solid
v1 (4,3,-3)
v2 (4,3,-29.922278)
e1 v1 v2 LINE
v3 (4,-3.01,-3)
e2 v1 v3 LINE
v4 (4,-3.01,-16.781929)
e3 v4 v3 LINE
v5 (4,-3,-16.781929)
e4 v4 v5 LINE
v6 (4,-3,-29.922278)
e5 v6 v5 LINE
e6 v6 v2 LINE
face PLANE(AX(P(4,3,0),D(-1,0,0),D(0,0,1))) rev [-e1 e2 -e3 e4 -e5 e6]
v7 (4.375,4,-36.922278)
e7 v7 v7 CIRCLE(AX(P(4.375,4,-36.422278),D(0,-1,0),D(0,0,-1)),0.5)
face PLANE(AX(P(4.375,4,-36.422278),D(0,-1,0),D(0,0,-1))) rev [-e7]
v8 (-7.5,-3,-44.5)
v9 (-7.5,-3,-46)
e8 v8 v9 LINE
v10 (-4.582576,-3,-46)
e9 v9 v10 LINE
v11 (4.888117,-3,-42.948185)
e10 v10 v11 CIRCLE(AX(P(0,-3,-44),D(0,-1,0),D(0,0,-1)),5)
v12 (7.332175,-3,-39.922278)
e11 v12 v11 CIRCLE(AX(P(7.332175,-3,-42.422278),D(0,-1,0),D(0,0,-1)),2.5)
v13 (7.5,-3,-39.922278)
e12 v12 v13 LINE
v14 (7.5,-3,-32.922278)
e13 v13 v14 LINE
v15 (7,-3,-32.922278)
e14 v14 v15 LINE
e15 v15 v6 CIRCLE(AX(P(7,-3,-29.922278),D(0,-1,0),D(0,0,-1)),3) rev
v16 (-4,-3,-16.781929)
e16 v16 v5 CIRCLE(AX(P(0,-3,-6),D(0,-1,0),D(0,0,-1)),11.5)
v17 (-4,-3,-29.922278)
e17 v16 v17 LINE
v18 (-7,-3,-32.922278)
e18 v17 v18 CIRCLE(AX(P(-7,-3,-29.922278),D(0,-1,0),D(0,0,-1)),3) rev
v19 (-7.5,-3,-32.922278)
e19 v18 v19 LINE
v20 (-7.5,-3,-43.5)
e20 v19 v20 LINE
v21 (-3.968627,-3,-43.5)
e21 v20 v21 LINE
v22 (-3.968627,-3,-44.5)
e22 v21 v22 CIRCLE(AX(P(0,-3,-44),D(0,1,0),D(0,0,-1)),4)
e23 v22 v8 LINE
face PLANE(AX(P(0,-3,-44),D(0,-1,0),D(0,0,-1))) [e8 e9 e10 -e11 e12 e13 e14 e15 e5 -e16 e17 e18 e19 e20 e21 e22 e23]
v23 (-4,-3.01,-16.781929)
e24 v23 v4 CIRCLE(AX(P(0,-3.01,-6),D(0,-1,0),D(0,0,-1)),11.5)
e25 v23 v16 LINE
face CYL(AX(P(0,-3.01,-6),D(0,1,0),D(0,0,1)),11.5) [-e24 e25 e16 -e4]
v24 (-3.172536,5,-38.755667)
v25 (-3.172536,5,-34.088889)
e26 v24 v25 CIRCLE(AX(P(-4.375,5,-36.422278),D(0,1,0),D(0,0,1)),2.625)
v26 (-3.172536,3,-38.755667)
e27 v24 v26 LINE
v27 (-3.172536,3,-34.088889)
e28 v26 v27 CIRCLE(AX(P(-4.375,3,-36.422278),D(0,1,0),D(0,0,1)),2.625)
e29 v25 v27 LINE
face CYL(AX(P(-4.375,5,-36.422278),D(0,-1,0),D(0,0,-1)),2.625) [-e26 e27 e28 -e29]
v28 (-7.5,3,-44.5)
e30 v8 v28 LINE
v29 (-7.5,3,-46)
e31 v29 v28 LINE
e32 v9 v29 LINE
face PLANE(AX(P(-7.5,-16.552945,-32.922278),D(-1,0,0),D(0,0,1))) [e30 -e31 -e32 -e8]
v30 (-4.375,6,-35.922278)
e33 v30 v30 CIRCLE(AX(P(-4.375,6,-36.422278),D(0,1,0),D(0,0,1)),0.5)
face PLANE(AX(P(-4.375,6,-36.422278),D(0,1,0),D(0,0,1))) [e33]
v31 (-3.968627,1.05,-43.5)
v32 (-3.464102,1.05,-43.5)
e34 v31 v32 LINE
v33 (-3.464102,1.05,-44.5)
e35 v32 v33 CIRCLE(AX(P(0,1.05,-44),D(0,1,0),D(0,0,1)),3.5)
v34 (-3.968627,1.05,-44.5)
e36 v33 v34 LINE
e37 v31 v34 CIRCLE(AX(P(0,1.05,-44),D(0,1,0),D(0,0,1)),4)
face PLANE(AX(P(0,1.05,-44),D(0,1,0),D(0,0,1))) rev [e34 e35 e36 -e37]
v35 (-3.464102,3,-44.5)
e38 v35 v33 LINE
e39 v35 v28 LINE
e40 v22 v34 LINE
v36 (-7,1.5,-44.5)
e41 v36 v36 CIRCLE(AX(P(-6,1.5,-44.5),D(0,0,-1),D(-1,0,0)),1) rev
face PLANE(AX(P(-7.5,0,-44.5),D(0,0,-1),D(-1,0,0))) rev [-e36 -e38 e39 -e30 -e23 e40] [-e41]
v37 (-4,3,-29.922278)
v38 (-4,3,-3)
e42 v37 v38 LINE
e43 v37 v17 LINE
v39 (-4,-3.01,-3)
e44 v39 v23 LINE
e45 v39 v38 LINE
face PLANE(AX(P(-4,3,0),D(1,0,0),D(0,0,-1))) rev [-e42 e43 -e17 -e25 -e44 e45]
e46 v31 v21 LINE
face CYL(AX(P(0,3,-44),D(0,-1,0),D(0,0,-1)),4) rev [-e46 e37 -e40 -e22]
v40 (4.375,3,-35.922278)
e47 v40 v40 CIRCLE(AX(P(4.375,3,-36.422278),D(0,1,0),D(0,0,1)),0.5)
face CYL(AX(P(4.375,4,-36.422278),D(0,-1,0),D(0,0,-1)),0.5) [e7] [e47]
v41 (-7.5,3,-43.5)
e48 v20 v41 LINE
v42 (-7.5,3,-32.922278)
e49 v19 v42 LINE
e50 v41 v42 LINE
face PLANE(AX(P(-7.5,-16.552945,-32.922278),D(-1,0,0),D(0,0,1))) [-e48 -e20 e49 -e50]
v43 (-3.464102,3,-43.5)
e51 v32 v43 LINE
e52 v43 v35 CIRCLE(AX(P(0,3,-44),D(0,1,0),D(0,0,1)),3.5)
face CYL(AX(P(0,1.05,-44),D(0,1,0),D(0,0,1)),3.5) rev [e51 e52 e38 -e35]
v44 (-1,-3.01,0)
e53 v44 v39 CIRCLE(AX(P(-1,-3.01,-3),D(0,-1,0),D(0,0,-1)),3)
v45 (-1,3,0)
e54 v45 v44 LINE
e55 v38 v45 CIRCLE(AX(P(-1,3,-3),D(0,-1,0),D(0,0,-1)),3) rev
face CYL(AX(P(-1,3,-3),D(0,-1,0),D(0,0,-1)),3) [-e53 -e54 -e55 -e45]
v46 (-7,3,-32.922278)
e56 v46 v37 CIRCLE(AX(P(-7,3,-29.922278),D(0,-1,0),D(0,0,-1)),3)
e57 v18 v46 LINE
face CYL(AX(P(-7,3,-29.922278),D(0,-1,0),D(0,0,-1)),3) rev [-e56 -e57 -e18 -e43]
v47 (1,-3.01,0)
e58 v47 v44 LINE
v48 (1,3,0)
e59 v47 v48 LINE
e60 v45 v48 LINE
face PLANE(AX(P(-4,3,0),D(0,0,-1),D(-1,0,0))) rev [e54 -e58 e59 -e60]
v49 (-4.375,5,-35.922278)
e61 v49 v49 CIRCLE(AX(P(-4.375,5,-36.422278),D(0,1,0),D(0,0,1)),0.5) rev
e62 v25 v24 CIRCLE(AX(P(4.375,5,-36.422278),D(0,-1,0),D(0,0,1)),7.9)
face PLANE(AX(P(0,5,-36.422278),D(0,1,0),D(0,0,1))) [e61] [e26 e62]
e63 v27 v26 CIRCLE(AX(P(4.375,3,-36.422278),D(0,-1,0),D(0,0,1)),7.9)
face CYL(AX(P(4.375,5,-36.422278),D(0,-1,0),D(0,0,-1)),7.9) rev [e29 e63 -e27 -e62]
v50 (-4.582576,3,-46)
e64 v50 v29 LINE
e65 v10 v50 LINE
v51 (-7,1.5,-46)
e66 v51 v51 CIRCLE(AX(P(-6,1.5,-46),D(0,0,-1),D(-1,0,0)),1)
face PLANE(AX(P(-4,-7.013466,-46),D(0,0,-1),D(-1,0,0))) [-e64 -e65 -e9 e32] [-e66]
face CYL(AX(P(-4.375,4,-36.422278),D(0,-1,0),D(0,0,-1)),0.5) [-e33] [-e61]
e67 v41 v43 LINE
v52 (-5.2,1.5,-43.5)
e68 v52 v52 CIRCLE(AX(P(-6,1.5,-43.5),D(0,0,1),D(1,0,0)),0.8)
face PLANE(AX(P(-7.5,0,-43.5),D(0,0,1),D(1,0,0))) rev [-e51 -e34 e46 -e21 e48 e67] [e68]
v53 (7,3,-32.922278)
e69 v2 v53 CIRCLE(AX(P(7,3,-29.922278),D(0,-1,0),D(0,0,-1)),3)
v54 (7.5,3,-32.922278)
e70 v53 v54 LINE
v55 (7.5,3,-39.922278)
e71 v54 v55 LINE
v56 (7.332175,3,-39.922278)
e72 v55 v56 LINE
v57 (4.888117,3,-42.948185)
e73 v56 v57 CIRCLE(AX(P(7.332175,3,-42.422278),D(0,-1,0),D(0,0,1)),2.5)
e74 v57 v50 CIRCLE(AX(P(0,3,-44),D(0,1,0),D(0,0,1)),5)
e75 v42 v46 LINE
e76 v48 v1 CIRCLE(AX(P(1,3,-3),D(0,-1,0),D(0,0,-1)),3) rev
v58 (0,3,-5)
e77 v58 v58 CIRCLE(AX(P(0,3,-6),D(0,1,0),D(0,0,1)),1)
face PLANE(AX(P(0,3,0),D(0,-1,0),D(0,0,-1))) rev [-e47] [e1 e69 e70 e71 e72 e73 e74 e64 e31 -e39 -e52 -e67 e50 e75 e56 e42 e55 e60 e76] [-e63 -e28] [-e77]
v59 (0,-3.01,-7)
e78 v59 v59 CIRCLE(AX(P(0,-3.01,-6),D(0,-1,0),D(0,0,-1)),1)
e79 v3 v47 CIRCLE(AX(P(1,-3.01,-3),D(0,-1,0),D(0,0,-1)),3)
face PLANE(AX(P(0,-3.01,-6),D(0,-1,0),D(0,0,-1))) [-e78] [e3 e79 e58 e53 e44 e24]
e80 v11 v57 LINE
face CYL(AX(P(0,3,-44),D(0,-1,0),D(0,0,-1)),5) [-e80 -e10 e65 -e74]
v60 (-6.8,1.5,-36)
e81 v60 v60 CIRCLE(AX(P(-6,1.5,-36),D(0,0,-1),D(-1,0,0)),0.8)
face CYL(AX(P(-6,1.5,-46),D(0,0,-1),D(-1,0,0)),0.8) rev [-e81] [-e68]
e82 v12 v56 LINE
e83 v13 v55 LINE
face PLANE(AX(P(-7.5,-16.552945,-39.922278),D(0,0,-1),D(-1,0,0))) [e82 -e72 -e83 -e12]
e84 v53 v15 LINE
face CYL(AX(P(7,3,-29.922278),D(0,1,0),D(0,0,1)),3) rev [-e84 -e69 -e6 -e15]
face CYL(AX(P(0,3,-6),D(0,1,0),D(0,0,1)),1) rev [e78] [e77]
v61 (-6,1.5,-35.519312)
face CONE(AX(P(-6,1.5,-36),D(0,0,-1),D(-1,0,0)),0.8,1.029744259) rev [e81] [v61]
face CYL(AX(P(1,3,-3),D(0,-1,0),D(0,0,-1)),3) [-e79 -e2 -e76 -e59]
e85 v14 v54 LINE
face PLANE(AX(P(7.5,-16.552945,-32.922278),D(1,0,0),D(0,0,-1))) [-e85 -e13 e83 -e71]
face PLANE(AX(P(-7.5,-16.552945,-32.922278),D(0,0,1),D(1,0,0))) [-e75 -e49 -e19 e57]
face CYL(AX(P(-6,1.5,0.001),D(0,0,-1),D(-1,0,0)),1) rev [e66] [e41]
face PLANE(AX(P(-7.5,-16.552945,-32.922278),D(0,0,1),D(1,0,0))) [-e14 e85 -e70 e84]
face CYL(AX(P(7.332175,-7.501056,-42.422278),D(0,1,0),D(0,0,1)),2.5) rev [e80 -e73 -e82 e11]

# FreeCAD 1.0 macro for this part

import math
import FreeCAD as App
import Part
import Sketcher

V = App.Vector


def edges_at(feature, points):
    """Names of the edges that pass closest to the given points."""
    edges = feature.Shape.Edges
    near = lambda p: min(range(len(edges)), key=lambda i: edges[i].distToShape(Part.Vertex(*p))[0])
    return sorted({f"Edge{near(p) + 1}" for p in points})

doc = App.newDocument("Part")
body = doc.addObject("PartDesign::Body", "Body")

# Sketch on XZ plane
sketch1 = body.newObject("Sketcher::SketchObject", "Sketch")
sketch1.AttachmentSupport = (doc.getObject("XZ_Plane"), [""])
sketch1.MapMode = "FlatFace"
sketch1.addGeometry(Part.LineSegment(V(-4, -40, 0), V(-4, 0, 0)), False)
sketch1.addGeometry(Part.LineSegment(V(-4, 0, 0), V(4, 0, 0)), False)
sketch1.addGeometry(Part.LineSegment(V(4, 0, 0), V(4, -40, 0)), False)
sketch1.addGeometry(Part.LineSegment(V(4, -40, 0), V(-4, -40, 0)), False)
sketch1.addConstraint(Sketcher.Constraint("Coincident", 0, 2, 1, 1))
sketch1.addConstraint(Sketcher.Constraint("Coincident", 1, 2, 2, 1))
sketch1.addConstraint(Sketcher.Constraint("Coincident", 2, 2, 3, 1))
sketch1.addConstraint(Sketcher.Constraint("Coincident", 3, 2, 0, 1))
sketch1.addConstraint(Sketcher.Constraint("Vertical", 0))
sketch1.addConstraint(Sketcher.Constraint("Horizontal", 1))
sketch1.addConstraint(Sketcher.Constraint("Vertical", 2))
sketch1.addConstraint(Sketcher.Constraint("Horizontal", 3))
sketch1.addConstraint(Sketcher.Constraint("Symmetric", 0, 2, 1, 2, -1, 1))
sketch1.addConstraint(Sketcher.Constraint("DistanceX", 1, 1, 1, 2, 8.0))
sketch1.addConstraint(Sketcher.Constraint("DistanceY", 0, 1, 0, 2, 40.0))
pad1 = body.newObject("PartDesign::Pad", "Pad")
pad1.Profile = sketch1
pad1.Length = 3
pad1.Reversed = True

# Sketch on XZ plane
sketch2 = body.newObject("Sketcher::SketchObject", "Sketch001")
sketch2.AttachmentSupport = (doc.getObject("XZ_Plane"), [""])
sketch2.MapMode = "FlatFace"
sketch2.addGeometry(Part.Circle(V(0, -44, 0), V(0, 0, 1), 5), False)
sketch2.addGeometry(Part.Circle(V(0, -44, 0), V(0, 0, 1), 4), False)
sketch2.addConstraint(Sketcher.Constraint("Coincident", 1, 3, 0, 3))
sketch2.addConstraint(Sketcher.Constraint("PointOnObject", 0, 3, -2))
sketch2.addConstraint(Sketcher.Constraint("Diameter", 0, 10.0))
sketch2.addConstraint(Sketcher.Constraint("Diameter", 1, 8.0))
sketch2.addConstraint(Sketcher.Constraint("DistanceY", 0, 3, -1, 1, 44.0))
pad2 = body.newObject("PartDesign::Pad", "Pad001")
pad2.Profile = sketch2
pad2.Length = 3
pad2.Reversed = True

# Sketch on XY plane
sketch3 = body.newObject("Sketcher::SketchObject", "Sketch002")
sketch3.AttachmentSupport = (doc.getObject("XY_Plane"), [""])
sketch3.MapMode = "FlatFace"
sketch3.AttachmentOffset = App.Placement(V(0, 0, -40), App.Rotation())
sketch3.addGeometry(Part.LineSegment(V(4, 3, 0), V(4, 0, 0)), False)
sketch3.addGeometry(Part.LineSegment(V(4, 0, 0), V(3, 0, 0)), False)
sketch3.addGeometry(Part.LineSegment(V(3, 0, 0), V(3, 3, 0)), False)
sketch3.addGeometry(Part.LineSegment(V(3, 3, 0), V(4, 3, 0)), False)
sketch3.addConstraint(Sketcher.Constraint("Coincident", 0, 2, 1, 1))
sketch3.addConstraint(Sketcher.Constraint("Coincident", 1, 2, 2, 1))
sketch3.addConstraint(Sketcher.Constraint("Coincident", 2, 2, 3, 1))
sketch3.addConstraint(Sketcher.Constraint("Coincident", 3, 2, 0, 1))
sketch3.addConstraint(Sketcher.Constraint("Vertical", 0))
sketch3.addConstraint(Sketcher.Constraint("Horizontal", 1))
sketch3.addConstraint(Sketcher.Constraint("Vertical", 2))
sketch3.addConstraint(Sketcher.Constraint("Horizontal", 3))
sketch3.addConstraint(Sketcher.Constraint("PointOnObject", 0, 2, -1))
sketch3.addConstraint(Sketcher.Constraint("DistanceX", 1, 2, 1, 1, 1.0))
sketch3.addConstraint(Sketcher.Constraint("DistanceY", 0, 2, 0, 1, 3.0))
sketch3.addConstraint(Sketcher.Constraint("DistanceX", -1, 1, 0, 2, 4.0))
pad3 = body.newObject("PartDesign::Pad", "Pad002")
pad3.Profile = sketch3
pad3.Length = 1
pad3.Reversed = True

# Sketch on XY plane
sketch4 = body.newObject("Sketcher::SketchObject", "Sketch003")
sketch4.AttachmentSupport = (doc.getObject("XY_Plane"), [""])
sketch4.MapMode = "FlatFace"
sketch4.AttachmentOffset = App.Placement(V(0, 0, -40), App.Rotation())
sketch4.addGeometry(Part.LineSegment(V(-3, 3, 0), V(-3, 0, 0)), False)
sketch4.addGeometry(Part.LineSegment(V(-3, 0, 0), V(-4, 0, 0)), False)
sketch4.addGeometry(Part.LineSegment(V(-4, 0, 0), V(-4, 3, 0)), False)
sketch4.addGeometry(Part.LineSegment(V(-4, 3, 0), V(-3, 3, 0)), False)
sketch4.addConstraint(Sketcher.Constraint("Coincident", 0, 2, 1, 1))
sketch4.addConstraint(Sketcher.Constraint("Coincident", 1, 2, 2, 1))
sketch4.addConstraint(Sketcher.Constraint("Coincident", 2, 2, 3, 1))
sketch4.addConstraint(Sketcher.Constraint("Coincident", 3, 2, 0, 1))
sketch4.addConstraint(Sketcher.Constraint("Vertical", 0))
sketch4.addConstraint(Sketcher.Constraint("Horizontal", 1))
sketch4.addConstraint(Sketcher.Constraint("Vertical", 2))
sketch4.addConstraint(Sketcher.Constraint("Horizontal", 3))
sketch4.addConstraint(Sketcher.Constraint("PointOnObject", 0, 2, -1))
sketch4.addConstraint(Sketcher.Constraint("DistanceX", 1, 2, 1, 1, 1.0))
sketch4.addConstraint(Sketcher.Constraint("DistanceY", 0, 2, 0, 1, 3.0))
sketch4.addConstraint(Sketcher.Constraint("DistanceX", 0, 2, -1, 1, 3.0))
pad4 = body.newObject("PartDesign::Pad", "Pad003")
pad4.Profile = sketch4
pad4.Length = 1
pad4.Reversed = True

# Sketch on XZ plane
sketch5 = body.newObject("Sketcher::SketchObject", "Sketch004")
sketch5.AttachmentSupport = (doc.getObject("XZ_Plane"), [""])
sketch5.MapMode = "FlatFace"
sketch5.AttachmentOffset = App.Placement(V(0, 0, -3), App.Rotation())
sketch5.addGeometry(Part.Circle(V(0, -6, 0), V(0, 0, 1), 1), False)
sketch5.addConstraint(Sketcher.Constraint("PointOnObject", 0, 3, -2))
sketch5.addConstraint(Sketcher.Constraint("Diameter", 0, 2.0))
sketch5.addConstraint(Sketcher.Constraint("DistanceY", 0, 3, -1, 1, 6.0))
doc.recompute()
hole = body.newObject("PartDesign::Hole", "Hole")
hole.Profile = sketch5
hole.ThreadType = "None"
hole.Diameter = 2
hole.DepthType = "ThroughAll"
hole.Reversed = True

# Sketch on XZ plane
sketch6 = body.newObject("Sketcher::SketchObject", "Sketch005")
sketch6.AttachmentSupport = (doc.getObject("XZ_Plane"), [""])
sketch6.MapMode = "FlatFace"
sketch6.AttachmentOffset = App.Placement(V(0, 0, -3), App.Rotation())
sketch6.addGeometry(Part.LineSegment(V(-7.5, -39.922278, 0), V(-7.5, -32.922278, 0)), False)
sketch6.addGeometry(Part.LineSegment(V(-7.5, -32.922278, 0), V(7.5, -32.922278, 0)), False)
sketch6.addGeometry(Part.LineSegment(V(7.5, -32.922278, 0), V(7.5, -39.922278, 0)), False)
sketch6.addGeometry(Part.LineSegment(V(7.5, -39.922278, 0), V(-7.5, -39.922278, 0)), False)
sketch6.addGeometry(Part.Circle(V(-4.375, -36.422278, 0), V(0, 0, 1), 0.5), False)
sketch6.addGeometry(Part.Circle(V(4.375, -36.422278, 0), V(0, 0, 1), 0.5), False)
sketch6.addConstraint(Sketcher.Constraint("Coincident", 0, 2, 1, 1))
sketch6.addConstraint(Sketcher.Constraint("Coincident", 1, 2, 2, 1))
sketch6.addConstraint(Sketcher.Constraint("Coincident", 2, 2, 3, 1))
sketch6.addConstraint(Sketcher.Constraint("Coincident", 3, 2, 0, 1))
sketch6.addConstraint(Sketcher.Constraint("Vertical", 0))
sketch6.addConstraint(Sketcher.Constraint("Horizontal", 1))
sketch6.addConstraint(Sketcher.Constraint("Vertical", 2))
sketch6.addConstraint(Sketcher.Constraint("Horizontal", 3))
sketch6.addConstraint(Sketcher.Constraint("Equal", 4, 5))
sketch6.addConstraint(Sketcher.Constraint("Symmetric", 4, 3, 5, 3, -2))
sketch6.addConstraint(Sketcher.Constraint("Diameter", 4, 1.0))
sketch6.addConstraint(Sketcher.Constraint("DistanceX", 1, 1, 1, 2, 15.0))
sketch6.addConstraint(Sketcher.Constraint("DistanceY", 0, 1, 0, 2, 7.0))
sketch6.addConstraint(Sketcher.Constraint("DistanceX", 0, 2, -1, 1, 7.5))
sketch6.addConstraint(Sketcher.Constraint("DistanceY", 4, 3, 0, 2, 3.5))
sketch6.addConstraint(Sketcher.Constraint("DistanceX", 4, 3, 5, 3, 8.75))
sketch6.addConstraint(Sketcher.Constraint("DistanceY", 4, 3, -1, 1, 36.422278))
pad5 = body.newObject("PartDesign::Pad", "Pad004")
pad5.Profile = sketch6
pad5.Length = 3

# Sketch on XZ plane
sketch7 = body.newObject("Sketcher::SketchObject", "Sketch006")
sketch7.AttachmentSupport = (doc.getObject("XZ_Plane"), [""])
sketch7.MapMode = "FlatFace"
sketch7.AttachmentOffset = App.Placement(V(0, 0, -3), App.Rotation())
sketch7.addGeometry(Part.LineSegment(V(-7.5, -46, 0), V(-7.5, -39.922278, 0)), False)
sketch7.addGeometry(Part.LineSegment(V(-7.5, -39.922278, 0), V(-4, -39.922278, 0)), False)
sketch7.addGeometry(Part.LineSegment(V(-4, -39.922278, 0), V(-4, -46, 0)), False)
sketch7.addGeometry(Part.LineSegment(V(-4, -46, 0), V(-7.5, -46, 0)), False)
sketch7.addConstraint(Sketcher.Constraint("Coincident", 0, 2, 1, 1))
sketch7.addConstraint(Sketcher.Constraint("Coincident", 1, 2, 2, 1))
sketch7.addConstraint(Sketcher.Constraint("Coincident", 2, 2, 3, 1))
sketch7.addConstraint(Sketcher.Constraint("Coincident", 3, 2, 0, 1))
sketch7.addConstraint(Sketcher.Constraint("Vertical", 0))
sketch7.addConstraint(Sketcher.Constraint("Horizontal", 1))
sketch7.addConstraint(Sketcher.Constraint("Vertical", 2))
sketch7.addConstraint(Sketcher.Constraint("Horizontal", 3))
sketch7.addConstraint(Sketcher.Constraint("DistanceX", 1, 1, 1, 2, 3.5))
sketch7.addConstraint(Sketcher.Constraint("DistanceX", 1, 2, -1, 1, 4.0))
sketch7.addConstraint(Sketcher.Constraint("DistanceY", 2, 2, -1, 1, 46.0))
sketch7.addConstraint(Sketcher.Constraint("DistanceY", 0, 1, 0, 2, 6.077722))
pad6 = body.newObject("PartDesign::Pad", "Pad005")
pad6.Profile = sketch7
pad6.Length = 3

# Sketch on XZ plane
sketch8 = body.newObject("Sketcher::SketchObject", "Sketch007")
sketch8.AttachmentSupport = (doc.getObject("XZ_Plane"), [""])
sketch8.MapMode = "FlatFace"
sketch8.AttachmentOffset = App.Placement(V(0, 0, -1.05), App.Rotation())
sketch8.addGeometry(Part.Circle(V(0, -44, 0), V(0, 0, 1), 4), False)
sketch8.addGeometry(Part.Circle(V(0, -44, 0), V(0, 0, 1), 3.5), False)
sketch8.addConstraint(Sketcher.Constraint("Coincident", 1, 3, 0, 3))
sketch8.addConstraint(Sketcher.Constraint("PointOnObject", 0, 3, -2))
sketch8.addConstraint(Sketcher.Constraint("Diameter", 0, 8.0))
sketch8.addConstraint(Sketcher.Constraint("Diameter", 1, 7.0))
sketch8.addConstraint(Sketcher.Constraint("DistanceY", 0, 3, -1, 1, 44.0))
pad7 = body.newObject("PartDesign::Pad", "Pad006")
pad7.Profile = sketch8
pad7.Length = 1.95
pad7.Reversed = True

# Sketch on XZ plane
sketch9 = body.newObject("Sketcher::SketchObject", "Sketch008")
sketch9.AttachmentSupport = (doc.getObject("XZ_Plane"), [""])
sketch9.MapMode = "FlatFace"
sketch9.AttachmentOffset = App.Placement(V(0, 0, -3), App.Rotation())
sketch9.addGeometry(Part.LineSegment(V(-7.5, -44.5, 0), V(-7.5, -43.5, 0)), False)
sketch9.addGeometry(Part.LineSegment(V(-7.5, -43.5, 0), V(-3.464102, -43.5, 0)), False)
sketch9.addGeometry(Part.LineSegment(V(-3.464102, -43.5, 0), V(-3.464102, -44.5, 0)), False)
sketch9.addGeometry(Part.LineSegment(V(-3.464102, -44.5, 0), V(-7.5, -44.5, 0)), False)
sketch9.addConstraint(Sketcher.Constraint("Coincident", 0, 2, 1, 1))
sketch9.addConstraint(Sketcher.Constraint("Coincident", 1, 2, 2, 1))
sketch9.addConstraint(Sketcher.Constraint("Coincident", 2, 2, 3, 1))
sketch9.addConstraint(Sketcher.Constraint("Coincident", 3, 2, 0, 1))
sketch9.addConstraint(Sketcher.Constraint("Vertical", 0))
sketch9.addConstraint(Sketcher.Constraint("Horizontal", 1))
sketch9.addConstraint(Sketcher.Constraint("Vertical", 2))
sketch9.addConstraint(Sketcher.Constraint("Horizontal", 3))
sketch9.addConstraint(Sketcher.Constraint("DistanceY", 0, 1, 0, 2, 1.0))
sketch9.addConstraint(Sketcher.Constraint("DistanceX", 0, 2, -1, 1, 7.5))
sketch9.addConstraint(Sketcher.Constraint("DistanceY", 0, 2, -1, 1, 43.5))
sketch9.addConstraint(Sketcher.Constraint("DistanceX", 1, 1, 1, 2, 4.035898))
pocket1 = body.newObject("PartDesign::Pocket", "Pocket")
pocket1.Profile = sketch9
pocket1.Length = 3
pocket1.Reversed = True

# Sketch on XZ plane
sketch10 = body.newObject("Sketcher::SketchObject", "Sketch009")
sketch10.AttachmentSupport = (doc.getObject("XZ_Plane"), [""])
sketch10.MapMode = "FlatFace"
sketch10.AttachmentOffset = App.Placement(V(0, 0, -4), App.Rotation())
sketch10.addGeometry(Part.Circle(V(-4.375, -36.422278, 0), V(0, 0, 1), 0.5), False)
sketch10.addGeometry(Part.Circle(V(4.375, -36.422278, 0), V(0, 0, 1), 0.5), False)
sketch10.addConstraint(Sketcher.Constraint("Equal", 0, 1))
sketch10.addConstraint(Sketcher.Constraint("Symmetric", 0, 3, 1, 3, -2))
sketch10.addConstraint(Sketcher.Constraint("Diameter", 0, 1.0))
sketch10.addConstraint(Sketcher.Constraint("DistanceX", 0, 3, 1, 3, 8.75))
sketch10.addConstraint(Sketcher.Constraint("DistanceY", 0, 3, -1, 1, 36.422278))
pad8 = body.newObject("PartDesign::Pad", "Pad007")
pad8.Profile = sketch10
pad8.Length = 4

# Sketch on XZ plane
sketch11 = body.newObject("Sketcher::SketchObject", "Sketch010")
sketch11.AttachmentSupport = (doc.getObject("XZ_Plane"), [""])
sketch11.MapMode = "FlatFace"
sketch11.AttachmentOffset = App.Placement(V(0, 0, -6), App.Rotation())
sketch11.addGeometry(Part.Circle(V(-4.375, -36.422278, 0), V(0, 0, 1), 0.5), False)
sketch11.addConstraint(Sketcher.Constraint("Diameter", 0, 1.0))
sketch11.addConstraint(Sketcher.Constraint("DistanceX", 0, 3, -1, 1, 4.375))
sketch11.addConstraint(Sketcher.Constraint("DistanceY", 0, 3, -1, 1, 36.422278))
pad9 = body.newObject("PartDesign::Pad", "Pad008")
pad9.Profile = sketch11
pad9.Length = 2

# Sketch on XZ plane
sketch12 = body.newObject("Sketcher::SketchObject", "Sketch011")
sketch12.AttachmentSupport = (doc.getObject("XZ_Plane"), [""])
sketch12.MapMode = "FlatFace"
sketch12.AttachmentOffset = App.Placement(V(0, 0, -3), App.Rotation())
sketch12.addGeometry(Part.ArcOfCircle(Part.Circle(V(-4.375, -36.422278, 0), V(0, 0, 1), 2.625), math.radians(62.736612), math.radians(297.263388)), False)
sketch12.addGeometry(Part.ArcOfCircle(Part.Circle(V(4.375, -36.422278, 0), V(0, 0, 1), 7.9), math.radians(162.820532), math.radians(197.179468)), False)
sketch12.addConstraint(Sketcher.Constraint("Coincident", 0, 1, 1, 1))
sketch12.addConstraint(Sketcher.Constraint("Coincident", 1, 2, 0, 2))
sketch12.addConstraint(Sketcher.Constraint("Symmetric", 0, 3, 1, 3, -2))
sketch12.addConstraint(Sketcher.Constraint("Radius", 1, 7.9))
sketch12.addConstraint(Sketcher.Constraint("Radius", 0, 2.625))
sketch12.addConstraint(Sketcher.Constraint("DistanceX", 0, 3, 1, 3, 8.75))
sketch12.addConstraint(Sketcher.Constraint("DistanceY", 0, 1, -1, 1, 34.088889))
pad10 = body.newObject("PartDesign::Pad", "Pad009")
pad10.Profile = sketch12
pad10.Length = 2
pad10.Reversed = True

# Sketch on XY plane
sketch13 = body.newObject("Sketcher::SketchObject", "Sketch012")
sketch13.AttachmentSupport = (doc.getObject("XY_Plane"), [""])
sketch13.MapMode = "FlatFace"
sketch13.AttachmentOffset = App.Placement(V(0, 0, -46), App.Rotation())
sketch13.addGeometry(Part.Circle(V(-6, 1.5, 0), V(0, 0, 1), 0.8), False)
sketch13.addConstraint(Sketcher.Constraint("Diameter", 0, 1.6))
sketch13.addConstraint(Sketcher.Constraint("DistanceX", 0, 3, -1, 1, 6.0))
sketch13.addConstraint(Sketcher.Constraint("DistanceY", -1, 1, 0, 3, 1.5))
doc.recompute()
hole2 = body.newObject("PartDesign::Hole", "Hole001")
hole2.Profile = sketch13
hole2.ThreadType = "None"
hole2.Diameter = 1.6
hole2.DepthType = "Dimension"
hole2.Depth = 10
hole2.DrillPoint = "Angled"
hole2.DrillPointAngle = 118
hole2.Reversed = True

# Sketch on XY plane
sketch14 = body.newObject("Sketcher::SketchObject", "Sketch013")
sketch14.AttachmentSupport = (doc.getObject("XY_Plane"), [""])
sketch14.MapMode = "FlatFace"
sketch14.AttachmentOffset = App.Placement(V(0, 0, -46), App.Rotation())
sketch14.addGeometry(Part.Circle(V(-6, 1.5, 0), V(0, 0, 1), 1), False)
sketch14.addConstraint(Sketcher.Constraint("Diameter", 0, 2.0))
sketch14.addConstraint(Sketcher.Constraint("DistanceX", 0, 3, -1, 1, 6.0))
sketch14.addConstraint(Sketcher.Constraint("DistanceY", -1, 1, 0, 3, 1.5))
pocket2 = body.newObject("PartDesign::Pocket", "Pocket001")
pocket2.Profile = sketch14
pocket2.Length = 1.5
pocket2.Reversed = True

# Sketch on XZ plane
sketch15 = body.newObject("Sketcher::SketchObject", "Sketch014")
sketch15.AttachmentSupport = (doc.getObject("XZ_Plane"), [""])
sketch15.MapMode = "FlatFace"
sketch15.AttachmentOffset = App.Placement(V(0, 0, 3), App.Rotation())
sketch15.addGeometry(Part.LineSegment(V(4, -41, 0), V(4, -39.922278, 0)), False)
sketch15.addGeometry(Part.LineSegment(V(4, -39.922278, 0), V(7.5, -39.922278, 0)), False)
sketch15.addGeometry(Part.LineSegment(V(7.5, -39.922278, 0), V(7.5, -32.922278, 0)), False)
sketch15.addGeometry(Part.LineSegment(V(7.5, -32.922278, 0), V(4, -32.922278, 0)), False)
sketch15.addGeometry(Part.LineSegment(V(4, -32.922278, 0), V(4, 0, 0)), False)
sketch15.addGeometry(Part.LineSegment(V(4, 0, 0), V(-4, 0, 0)), False)
sketch15.addGeometry(Part.LineSegment(V(-4, 0, 0), V(-4, -32.922278, 0)), False)
sketch15.addGeometry(Part.LineSegment(V(-4, -32.922278, 0), V(-7.5, -32.922278, 0)), False)
sketch15.addGeometry(Part.LineSegment(V(-7.5, -32.922278, 0), V(-7.5, -43.5, 0)), False)
sketch15.addGeometry(Part.LineSegment(V(-7.5, -43.5, 0), V(-3.968627, -43.5, 0)), False)
sketch15.addGeometry(Part.ArcOfCircle(Part.Circle(V(0, -44, 0), V(0, 0, 1), 4), math.radians(-172.819244), math.radians(172.819244)), False)
sketch15.addGeometry(Part.LineSegment(V(-3.968627, -44.5, 0), V(-7.5, -44.5, 0)), False)
sketch15.addGeometry(Part.LineSegment(V(-7.5, -44.5, 0), V(-7.5, -46, 0)), False)
sketch15.addGeometry(Part.LineSegment(V(-7.5, -46, 0), V(-4.582576, -46, 0)), False)
sketch15.addGeometry(Part.ArcOfCircle(Part.Circle(V(0, -44, 0), V(0, 0, 1), 5), math.radians(-156.421822), math.radians(36.869898)), False)
sketch15.addGeometry(Part.Circle(V(0, -6, 0), V(0, 0, 1), 1), False)
sketch15.addConstraint(Sketcher.Constraint("Coincident", 0, 2, 1, 1))
sketch15.addConstraint(Sketcher.Constraint("Coincident", 1, 2, 2, 1))
sketch15.addConstraint(Sketcher.Constraint("Coincident", 2, 2, 3, 1))
sketch15.addConstraint(Sketcher.Constraint("Coincident", 3, 2, 4, 1))
sketch15.addConstraint(Sketcher.Constraint("Coincident", 4, 2, 5, 1))
sketch15.addConstraint(Sketcher.Constraint("Coincident", 5, 2, 6, 1))
sketch15.addConstraint(Sketcher.Constraint("Coincident", 6, 2, 7, 1))
sketch15.addConstraint(Sketcher.Constraint("Coincident", 7, 2, 8, 1))
sketch15.addConstraint(Sketcher.Constraint("Coincident", 8, 2, 9, 1))
sketch15.addConstraint(Sketcher.Constraint("Coincident", 9, 2, 10, 2))
sketch15.addConstraint(Sketcher.Constraint("Coincident", 10, 1, 11, 1))
sketch15.addConstraint(Sketcher.Constraint("Coincident", 11, 2, 12, 1))
sketch15.addConstraint(Sketcher.Constraint("Coincident", 12, 2, 13, 1))
sketch15.addConstraint(Sketcher.Constraint("Coincident", 13, 2, 14, 1))
sketch15.addConstraint(Sketcher.Constraint("Coincident", 14, 2, 0, 1))
sketch15.addConstraint(Sketcher.Constraint("Vertical", 0))
sketch15.addConstraint(Sketcher.Constraint("Horizontal", 1))
sketch15.addConstraint(Sketcher.Constraint("Vertical", 2))
sketch15.addConstraint(Sketcher.Constraint("Horizontal", 3))
sketch15.addConstraint(Sketcher.Constraint("Vertical", 4))
sketch15.addConstraint(Sketcher.Constraint("Horizontal", 5))
sketch15.addConstraint(Sketcher.Constraint("Vertical", 6))
sketch15.addConstraint(Sketcher.Constraint("Horizontal", 7))
sketch15.addConstraint(Sketcher.Constraint("Vertical", 8))
sketch15.addConstraint(Sketcher.Constraint("Horizontal", 9))
sketch15.addConstraint(Sketcher.Constraint("Horizontal", 11))
sketch15.addConstraint(Sketcher.Constraint("Vertical", 12))
sketch15.addConstraint(Sketcher.Constraint("Horizontal", 13))
sketch15.addConstraint(Sketcher.Constraint("Coincident", 14, 3, 10, 3))
sketch15.addConstraint(Sketcher.Constraint("Symmetric", 4, 2, 5, 2, -1, 1))
sketch15.addConstraint(Sketcher.Constraint("Symmetric", 2, 2, 7, 2, -2))
sketch15.addConstraint(Sketcher.Constraint("PointOnObject", 10, 3, -2))
sketch15.addConstraint(Sketcher.Constraint("PointOnObject", 15, 3, -2))
sketch15.addConstraint(Sketcher.Constraint("Vertical", 0, 2, 3, 2))
sketch15.addConstraint(Sketcher.Constraint("Vertical", 9, 2, 10, 1))
sketch15.addConstraint(Sketcher.Constraint("Vertical", 8, 2, 11, 2))
sketch15.addConstraint(Sketcher.Constraint("Diameter", 15, 2.0))
sketch15.addConstraint(Sketcher.Constraint("Radius", 10, 4.0))
sketch15.addConstraint(Sketcher.Constraint("Radius", 14, 5.0))
sketch15.addConstraint(Sketcher.Constraint("DistanceX", 5, 2, 5, 1, 8.0))
sketch15.addConstraint(Sketcher.Constraint("DistanceY", 2, 1, 2, 2, 7.0))
sketch15.addConstraint(Sketcher.Constraint("DistanceX", 1, 1, 1, 2, 3.5))
sketch15.addConstraint(Sketcher.Constraint("DistanceY", 12, 2, 12, 1, 1.5))
sketch15.addConstraint(Sketcher.Constraint("DistanceY", 10, 3, -1, 1, 44.0))
sketch15.addConstraint(Sketcher.Constraint("DistanceY", 15, 3, -1, 1, 6.0))
sketch15.addConstraint(Sketcher.Constraint("DistanceY", 12, 2, -1, 1, 46.0))
sketch15.addConstraint(Sketcher.Constraint("DistanceY", 0, 1, 0, 2, 1.077722))
pad11 = body.newObject("PartDesign::Pad", "Pad010")
pad11.Profile = sketch15
pad11.Length = 3
pad11.Reversed = True

# Sketch on XZ plane
sketch16 = body.newObject("Sketcher::SketchObject", "Sketch015")
sketch16.AttachmentSupport = (doc.getObject("XZ_Plane"), [""])
sketch16.MapMode = "FlatFace"
sketch16.AttachmentOffset = App.Placement(V(0, 0, 3.01), App.Rotation())
sketch16.addGeometry(Part.LineSegment(V(4, -16.781929, 0), V(4, 0, 0)), False)
sketch16.addGeometry(Part.LineSegment(V(4, 0, 0), V(-4, 0, 0)), False)
sketch16.addGeometry(Part.LineSegment(V(-4, 0, 0), V(-4, -16.781929, 0)), False)
sketch16.addGeometry(Part.ArcOfCircle(Part.Circle(V(0, -6, 0), V(0, 0, 1), 11.5), math.radians(-110.354406), math.radians(-69.645594)), False)
sketch16.addGeometry(Part.Circle(V(0, -6, 0), V(0, 0, 1), 1), False)
sketch16.addConstraint(Sketcher.Constraint("Coincident", 0, 2, 1, 1))
sketch16.addConstraint(Sketcher.Constraint("Coincident", 1, 2, 2, 1))
sketch16.addConstraint(Sketcher.Constraint("Coincident", 2, 2, 3, 1))
sketch16.addConstraint(Sketcher.Constraint("Coincident", 3, 2, 0, 1))
sketch16.addConstraint(Sketcher.Constraint("Vertical", 0))
sketch16.addConstraint(Sketcher.Constraint("Horizontal", 1))
sketch16.addConstraint(Sketcher.Constraint("Vertical", 2))
sketch16.addConstraint(Sketcher.Constraint("Coincident", 4, 3, 3, 3))
sketch16.addConstraint(Sketcher.Constraint("Symmetric", 0, 2, 1, 2, -1, 1))
sketch16.addConstraint(Sketcher.Constraint("PointOnObject", 3, 3, -2))
sketch16.addConstraint(Sketcher.Constraint("Diameter", 4, 2.0))
sketch16.addConstraint(Sketcher.Constraint("Radius", 3, 11.5))
sketch16.addConstraint(Sketcher.Constraint("DistanceX", 1, 2, 1, 1, 8.0))
sketch16.addConstraint(Sketcher.Constraint("DistanceY", 3, 3, -1, 1, 6.0))
pad12 = body.newObject("PartDesign::Pad", "Pad011")
pad12.Profile = sketch16
pad12.Length = 0.01
pad12.Reversed = True
doc.recompute()

fillet = body.newObject("PartDesign::Fillet", "Fillet")
fillet.Base = (pad12, edges_at(pad12, [
    (-4, 0, -32.922),
    (4, 0, -32.922),
    (4, -0.005, 0),
    (-4, -0.005, 0),
]))
fillet.Radius = 3

# Sketch on XZ plane
sketch17 = body.newObject("Sketcher::SketchObject", "Sketch016")
sketch17.AttachmentSupport = (doc.getObject("XZ_Plane"), [""])
sketch17.MapMode = "FlatFace"
sketch17.AttachmentOffset = App.Placement(V(0, 0, 3), App.Rotation())
sketch17.addGeometry(Part.LineSegment(V(4, -39.922278, 0), V(7.332175, -39.922278, 0)), False)
sketch17.addGeometry(Part.ArcOfCircle(Part.Circle(V(7.332175, -42.422278, 0), V(0, 0, 1), 2.5), math.radians(90), math.radians(192.143624)), False)
sketch17.addGeometry(Part.ArcOfCircle(Part.Circle(V(0, -44, 0), V(0, 0, 1), 5), math.radians(12.143624), math.radians(36.869898)), False)
sketch17.addGeometry(Part.LineSegment(V(4, -41, 0), V(4, -39.922278, 0)), False)
sketch17.addConstraint(Sketcher.Constraint("Tangent", 0, 2, 1, 1))
sketch17.addConstraint(Sketcher.Constraint("Tangent", 1, 2, 2, 1))
sketch17.addConstraint(Sketcher.Constraint("Coincident", 2, 2, 3, 1))
sketch17.addConstraint(Sketcher.Constraint("Coincident", 3, 2, 0, 1))
sketch17.addConstraint(Sketcher.Constraint("Horizontal", 0))
sketch17.addConstraint(Sketcher.Constraint("Vertical", 3))
sketch17.addConstraint(Sketcher.Constraint("PointOnObject", 2, 3, -2))
sketch17.addConstraint(Sketcher.Constraint("Radius", 2, 5.0))
sketch17.addConstraint(Sketcher.Constraint("Radius", 1, 2.5))
sketch17.addConstraint(Sketcher.Constraint("DistanceY", 2, 3, -1, 1, 44.0))
sketch17.addConstraint(Sketcher.Constraint("DistanceX", -1, 1, 2, 2, 4.0))
sketch17.addConstraint(Sketcher.Constraint("DistanceX", 0, 1, 0, 2, 3.332175))
pad13 = body.newObject("PartDesign::Pad", "Pad012")
pad13.Profile = sketch17
pad13.Length = 6
pad13.Reversed = True

doc.recompute()
